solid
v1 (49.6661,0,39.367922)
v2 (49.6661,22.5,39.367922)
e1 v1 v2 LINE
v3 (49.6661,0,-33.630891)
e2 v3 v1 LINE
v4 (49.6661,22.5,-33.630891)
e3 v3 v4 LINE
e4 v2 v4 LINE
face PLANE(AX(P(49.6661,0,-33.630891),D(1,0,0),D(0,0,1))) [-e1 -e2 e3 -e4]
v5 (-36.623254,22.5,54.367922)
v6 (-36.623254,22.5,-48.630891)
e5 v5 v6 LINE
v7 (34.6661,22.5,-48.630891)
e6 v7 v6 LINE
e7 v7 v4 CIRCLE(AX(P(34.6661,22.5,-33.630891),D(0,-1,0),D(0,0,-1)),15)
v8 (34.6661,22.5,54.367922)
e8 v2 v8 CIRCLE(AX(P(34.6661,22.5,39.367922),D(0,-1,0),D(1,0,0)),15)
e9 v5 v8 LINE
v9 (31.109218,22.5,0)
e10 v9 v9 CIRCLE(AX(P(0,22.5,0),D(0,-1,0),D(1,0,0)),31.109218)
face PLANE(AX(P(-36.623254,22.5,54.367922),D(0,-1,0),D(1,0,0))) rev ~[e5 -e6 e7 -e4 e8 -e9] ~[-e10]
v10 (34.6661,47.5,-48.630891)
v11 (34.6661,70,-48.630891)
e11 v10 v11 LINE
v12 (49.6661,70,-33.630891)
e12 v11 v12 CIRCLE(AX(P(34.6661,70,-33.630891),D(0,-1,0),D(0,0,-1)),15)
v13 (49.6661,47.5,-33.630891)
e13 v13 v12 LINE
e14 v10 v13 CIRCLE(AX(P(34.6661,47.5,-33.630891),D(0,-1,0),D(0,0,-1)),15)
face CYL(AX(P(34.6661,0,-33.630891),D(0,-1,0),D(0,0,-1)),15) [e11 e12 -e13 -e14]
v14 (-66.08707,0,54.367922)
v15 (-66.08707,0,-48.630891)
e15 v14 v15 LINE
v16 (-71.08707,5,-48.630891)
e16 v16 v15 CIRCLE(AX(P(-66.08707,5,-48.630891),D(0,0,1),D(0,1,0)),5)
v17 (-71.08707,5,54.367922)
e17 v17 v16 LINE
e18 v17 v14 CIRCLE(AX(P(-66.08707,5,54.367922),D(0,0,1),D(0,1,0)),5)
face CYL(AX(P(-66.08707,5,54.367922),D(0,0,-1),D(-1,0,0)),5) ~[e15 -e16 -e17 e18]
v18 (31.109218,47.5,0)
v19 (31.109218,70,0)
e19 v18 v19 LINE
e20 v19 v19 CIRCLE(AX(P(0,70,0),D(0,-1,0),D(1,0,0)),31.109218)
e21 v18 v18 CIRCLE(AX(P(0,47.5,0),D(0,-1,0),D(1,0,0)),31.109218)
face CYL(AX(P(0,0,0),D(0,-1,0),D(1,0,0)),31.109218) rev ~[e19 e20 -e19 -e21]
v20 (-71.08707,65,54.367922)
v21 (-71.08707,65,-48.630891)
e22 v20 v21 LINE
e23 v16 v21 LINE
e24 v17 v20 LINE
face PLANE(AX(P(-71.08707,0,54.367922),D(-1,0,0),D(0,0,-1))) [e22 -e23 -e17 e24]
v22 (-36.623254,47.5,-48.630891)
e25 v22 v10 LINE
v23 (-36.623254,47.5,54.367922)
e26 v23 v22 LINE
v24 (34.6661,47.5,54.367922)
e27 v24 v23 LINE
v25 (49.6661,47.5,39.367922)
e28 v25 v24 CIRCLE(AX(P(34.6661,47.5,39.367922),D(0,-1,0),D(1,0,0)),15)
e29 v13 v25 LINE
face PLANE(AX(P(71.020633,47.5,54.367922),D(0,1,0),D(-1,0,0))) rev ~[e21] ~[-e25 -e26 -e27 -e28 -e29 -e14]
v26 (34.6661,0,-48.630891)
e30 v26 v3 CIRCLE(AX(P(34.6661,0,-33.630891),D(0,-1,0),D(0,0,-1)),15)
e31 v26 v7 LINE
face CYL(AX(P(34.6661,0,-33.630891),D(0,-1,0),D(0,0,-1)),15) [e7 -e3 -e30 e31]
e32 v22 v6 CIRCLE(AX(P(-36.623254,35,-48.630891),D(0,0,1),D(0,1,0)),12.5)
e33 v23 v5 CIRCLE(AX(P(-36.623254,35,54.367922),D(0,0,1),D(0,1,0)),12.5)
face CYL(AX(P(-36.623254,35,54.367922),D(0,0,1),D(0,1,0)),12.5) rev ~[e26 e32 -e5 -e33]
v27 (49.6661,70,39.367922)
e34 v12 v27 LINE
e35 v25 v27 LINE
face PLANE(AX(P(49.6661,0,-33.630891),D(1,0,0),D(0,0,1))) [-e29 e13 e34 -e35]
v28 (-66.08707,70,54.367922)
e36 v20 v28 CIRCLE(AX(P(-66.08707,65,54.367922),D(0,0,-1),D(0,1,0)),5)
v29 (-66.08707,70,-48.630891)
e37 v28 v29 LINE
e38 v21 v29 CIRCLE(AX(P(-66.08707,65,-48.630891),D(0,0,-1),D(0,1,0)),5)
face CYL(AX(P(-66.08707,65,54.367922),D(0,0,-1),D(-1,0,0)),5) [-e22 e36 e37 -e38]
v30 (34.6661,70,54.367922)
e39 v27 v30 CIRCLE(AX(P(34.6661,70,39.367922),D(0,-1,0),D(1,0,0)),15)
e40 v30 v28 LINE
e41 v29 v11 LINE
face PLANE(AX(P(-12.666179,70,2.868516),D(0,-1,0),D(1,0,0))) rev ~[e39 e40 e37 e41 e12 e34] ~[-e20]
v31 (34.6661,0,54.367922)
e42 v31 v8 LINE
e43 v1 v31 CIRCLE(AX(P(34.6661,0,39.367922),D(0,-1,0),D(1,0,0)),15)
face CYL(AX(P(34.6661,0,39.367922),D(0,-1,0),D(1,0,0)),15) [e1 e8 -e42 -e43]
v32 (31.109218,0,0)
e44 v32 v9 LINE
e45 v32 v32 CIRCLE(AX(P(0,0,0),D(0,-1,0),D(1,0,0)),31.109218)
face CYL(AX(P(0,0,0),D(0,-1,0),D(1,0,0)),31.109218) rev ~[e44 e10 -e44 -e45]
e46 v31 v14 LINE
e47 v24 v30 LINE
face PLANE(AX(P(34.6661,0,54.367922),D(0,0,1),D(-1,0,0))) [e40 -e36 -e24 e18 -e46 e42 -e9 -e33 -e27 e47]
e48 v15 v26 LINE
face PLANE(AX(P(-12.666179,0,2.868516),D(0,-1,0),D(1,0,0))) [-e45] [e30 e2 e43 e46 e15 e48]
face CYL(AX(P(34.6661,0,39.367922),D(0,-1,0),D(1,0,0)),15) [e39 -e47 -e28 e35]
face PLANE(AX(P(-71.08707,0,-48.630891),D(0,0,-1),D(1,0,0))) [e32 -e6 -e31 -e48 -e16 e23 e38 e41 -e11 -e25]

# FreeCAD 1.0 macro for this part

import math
import FreeCAD as App
import Part
import Sketcher
from FreeCAD import Vector
Q = App.Units.Quantity


def edges_at(feature, points):
    """Names of the edges that pass closest to the given points."""
    edges = feature.Shape.Edges
    near = lambda p: min(range(len(edges)), key=lambda i: edges[i].distToShape(Part.Vertex(*p))[0])
    return sorted({f"Edge{near(p) + 1}" for p in points})

doc = App.newDocument("Part")
params = doc.addObject("Spreadsheet::Sheet", "Params")
for row, (alias, value) in enumerate([
    ("sketch1_radius", "15 mm"),
    ("pad1_length", "70 mm"),
    ("fillet_radius", "5 mm"),
    ("sketch2_radius", "12.5 mm"),
], start=1):
    params.set(f"A{row}", alias)
    params.set(f"B{row}", "=" + value)
    params.setAlias(f"B{row}", alias)

body = doc.addObject("PartDesign::Body", "Body")

sketch1 = body.newObject("Sketcher::SketchObject", "Sketch")
sketch1.AttachmentSupport = (doc.getObject("XZ_Plane"), [""])
sketch1.MapMode = "FlatFace"
sketch1.addGeometry(Part.LineSegment(Vector(34.6661, 54.367922, 0), Vector(-71.08707, 54.367922, 0)), False)
sketch1.addGeometry(Part.LineSegment(Vector(-71.08707, 54.367922, 0), Vector(-71.08707, -48.630891, 0)), False)
sketch1.addGeometry(Part.LineSegment(Vector(-71.08707, -48.630891, 0), Vector(34.6661, -48.630891, 0)), False)
sketch1.addGeometry(Part.ArcOfCircle(Part.Circle(Vector(34.6661, -33.630891, 0), Vector(0, 0, 1), 15), math.radians(-90), math.radians(0)), False)
sketch1.addGeometry(Part.LineSegment(Vector(49.6661, -33.630891, 0), Vector(49.6661, 39.367922, 0)), False)
sketch1.addGeometry(Part.ArcOfCircle(Part.Circle(Vector(34.6661, 39.367922, 0), Vector(0, 0, 1), 15), math.radians(0), math.radians(90)), False)
sketch1.addConstraint(Sketcher.Constraint("Coincident", 0, 2, 1, 1))
sketch1.addConstraint(Sketcher.Constraint("Coincident", 1, 2, 2, 1))
sketch1.addConstraint(Sketcher.Constraint("Tangent", 2, 2, 3, 1))
sketch1.addConstraint(Sketcher.Constraint("Tangent", 3, 2, 4, 1))
sketch1.addConstraint(Sketcher.Constraint("Tangent", 4, 2, 5, 1))
sketch1.addConstraint(Sketcher.Constraint("Tangent", 5, 2, 0, 1))
sketch1.addConstraint(Sketcher.Constraint("Horizontal", 0))
sketch1.addConstraint(Sketcher.Constraint("Vertical", 1))
sketch1.addConstraint(Sketcher.Constraint("Horizontal", 2))
sketch1.addConstraint(Sketcher.Constraint("Vertical", 4))
sketch1.addConstraint(Sketcher.Constraint("Equal", 3, 5))
sketch1.addConstraint(Sketcher.Constraint("Radius", 3, Q("15 mm")))
sketch1.addConstraint(Sketcher.Constraint("DistanceX", 0, 2, 0, 1, Q("105.75317 mm")))
sketch1.addConstraint(Sketcher.Constraint("DistanceX", -1, 1, 3, 3, Q("34.6661 mm")))
sketch1.addConstraint(Sketcher.Constraint("DistanceY", 1, 2, 1, 1, Q("102.998813 mm")))
sketch1.addConstraint(Sketcher.Constraint("DistanceY", 3, 3, -1, 1, Q("33.630891 mm")))
sketch1.setExpression("Constraints[11]", "Params.sketch1_radius")
pad1 = body.newObject("PartDesign::Pad", "Pad")
pad1.Profile = sketch1
pad1.setExpression("Length", "Params.pad1_length")
pad1.Reversed = True
doc.recompute()

fillet = body.newObject("PartDesign::Fillet", "Fillet")
fillet.Base = (pad1, edges_at(pad1, [(-71.087, 0, 2.869), (-71.087, 70, 2.869)]))
fillet.setExpression("Radius", "Params.fillet_radius")

sketch2 = body.newObject("Sketcher::SketchObject", "Sketch001")
sketch2.AttachmentSupport = (doc.getObject("XY_Plane"), [""])
sketch2.MapMode = "FlatFace"
sketch2.AttachmentOffset = App.Placement(Vector(0, 0, 54.367922), App.Rotation())
sketch2.addGeometry(Part.ArcOfCircle(Part.Circle(Vector(-36.623254, 35, 0), Vector(0, 0, 1), 12.5), math.radians(90), math.radians(270)), False)
sketch2.addGeometry(Part.LineSegment(Vector(-36.623254, 22.5, 0), Vector(71.020633, 22.5, 0)), False)
sketch2.addGeometry(Part.LineSegment(Vector(71.020633, 22.5, 0), Vector(71.020633, 47.5, 0)), False)
sketch2.addGeometry(Part.LineSegment(Vector(71.020633, 47.5, 0), Vector(-36.623254, 47.5, 0)), False)
sketch2.addConstraint(Sketcher.Constraint("Tangent", 0, 2, 1, 1))
sketch2.addConstraint(Sketcher.Constraint("Coincident", 1, 2, 2, 1))
sketch2.addConstraint(Sketcher.Constraint("Coincident", 2, 2, 3, 1))
sketch2.addConstraint(Sketcher.Constraint("Tangent", 3, 2, 0, 1))
sketch2.addConstraint(Sketcher.Constraint("Horizontal", 1))
sketch2.addConstraint(Sketcher.Constraint("Vertical", 2))
sketch2.addConstraint(Sketcher.Constraint("Horizontal", 3))
sketch2.addConstraint(Sketcher.Constraint("Radius", 0, Q("12.5 mm")))
sketch2.addConstraint(Sketcher.Constraint("DistanceY", -1, 1, 0, 3, Q("35 mm")))
sketch2.addConstraint(Sketcher.Constraint("DistanceX", 1, 1, 1, 2, Q("107.643887 mm")))
sketch2.addConstraint(Sketcher.Constraint("DistanceX", 0, 3, -1, 1, Q("36.623254 mm")))
sketch2.setExpression("Constraints[7]", "Params.sketch2_radius")
pocket1 = body.newObject("PartDesign::Pocket", "Pocket")
pocket1.Profile = sketch2
pocket1.Type = "ThroughAll"

sketch3 = body.newObject("Sketcher::SketchObject", "Sketch002")
sketch3.AttachmentSupport = (doc.getObject("XZ_Plane"), [""])
sketch3.MapMode = "FlatFace"
sketch3.addGeometry(Part.Circle(Vector(0, 0, 0), Vector(0, 0, 1), 31.109218), False)
sketch3.addConstraint(Sketcher.Constraint("Coincident", 0, 3, -1, 1))
sketch3.addConstraint(Sketcher.Constraint("Diameter", 0, Q("62.218436 mm")))
pocket2 = body.newObject("PartDesign::Pocket", "Pocket001")
pocket2.Profile = sketch3
pocket2.Type = "ThroughAll"

doc.recompute()
